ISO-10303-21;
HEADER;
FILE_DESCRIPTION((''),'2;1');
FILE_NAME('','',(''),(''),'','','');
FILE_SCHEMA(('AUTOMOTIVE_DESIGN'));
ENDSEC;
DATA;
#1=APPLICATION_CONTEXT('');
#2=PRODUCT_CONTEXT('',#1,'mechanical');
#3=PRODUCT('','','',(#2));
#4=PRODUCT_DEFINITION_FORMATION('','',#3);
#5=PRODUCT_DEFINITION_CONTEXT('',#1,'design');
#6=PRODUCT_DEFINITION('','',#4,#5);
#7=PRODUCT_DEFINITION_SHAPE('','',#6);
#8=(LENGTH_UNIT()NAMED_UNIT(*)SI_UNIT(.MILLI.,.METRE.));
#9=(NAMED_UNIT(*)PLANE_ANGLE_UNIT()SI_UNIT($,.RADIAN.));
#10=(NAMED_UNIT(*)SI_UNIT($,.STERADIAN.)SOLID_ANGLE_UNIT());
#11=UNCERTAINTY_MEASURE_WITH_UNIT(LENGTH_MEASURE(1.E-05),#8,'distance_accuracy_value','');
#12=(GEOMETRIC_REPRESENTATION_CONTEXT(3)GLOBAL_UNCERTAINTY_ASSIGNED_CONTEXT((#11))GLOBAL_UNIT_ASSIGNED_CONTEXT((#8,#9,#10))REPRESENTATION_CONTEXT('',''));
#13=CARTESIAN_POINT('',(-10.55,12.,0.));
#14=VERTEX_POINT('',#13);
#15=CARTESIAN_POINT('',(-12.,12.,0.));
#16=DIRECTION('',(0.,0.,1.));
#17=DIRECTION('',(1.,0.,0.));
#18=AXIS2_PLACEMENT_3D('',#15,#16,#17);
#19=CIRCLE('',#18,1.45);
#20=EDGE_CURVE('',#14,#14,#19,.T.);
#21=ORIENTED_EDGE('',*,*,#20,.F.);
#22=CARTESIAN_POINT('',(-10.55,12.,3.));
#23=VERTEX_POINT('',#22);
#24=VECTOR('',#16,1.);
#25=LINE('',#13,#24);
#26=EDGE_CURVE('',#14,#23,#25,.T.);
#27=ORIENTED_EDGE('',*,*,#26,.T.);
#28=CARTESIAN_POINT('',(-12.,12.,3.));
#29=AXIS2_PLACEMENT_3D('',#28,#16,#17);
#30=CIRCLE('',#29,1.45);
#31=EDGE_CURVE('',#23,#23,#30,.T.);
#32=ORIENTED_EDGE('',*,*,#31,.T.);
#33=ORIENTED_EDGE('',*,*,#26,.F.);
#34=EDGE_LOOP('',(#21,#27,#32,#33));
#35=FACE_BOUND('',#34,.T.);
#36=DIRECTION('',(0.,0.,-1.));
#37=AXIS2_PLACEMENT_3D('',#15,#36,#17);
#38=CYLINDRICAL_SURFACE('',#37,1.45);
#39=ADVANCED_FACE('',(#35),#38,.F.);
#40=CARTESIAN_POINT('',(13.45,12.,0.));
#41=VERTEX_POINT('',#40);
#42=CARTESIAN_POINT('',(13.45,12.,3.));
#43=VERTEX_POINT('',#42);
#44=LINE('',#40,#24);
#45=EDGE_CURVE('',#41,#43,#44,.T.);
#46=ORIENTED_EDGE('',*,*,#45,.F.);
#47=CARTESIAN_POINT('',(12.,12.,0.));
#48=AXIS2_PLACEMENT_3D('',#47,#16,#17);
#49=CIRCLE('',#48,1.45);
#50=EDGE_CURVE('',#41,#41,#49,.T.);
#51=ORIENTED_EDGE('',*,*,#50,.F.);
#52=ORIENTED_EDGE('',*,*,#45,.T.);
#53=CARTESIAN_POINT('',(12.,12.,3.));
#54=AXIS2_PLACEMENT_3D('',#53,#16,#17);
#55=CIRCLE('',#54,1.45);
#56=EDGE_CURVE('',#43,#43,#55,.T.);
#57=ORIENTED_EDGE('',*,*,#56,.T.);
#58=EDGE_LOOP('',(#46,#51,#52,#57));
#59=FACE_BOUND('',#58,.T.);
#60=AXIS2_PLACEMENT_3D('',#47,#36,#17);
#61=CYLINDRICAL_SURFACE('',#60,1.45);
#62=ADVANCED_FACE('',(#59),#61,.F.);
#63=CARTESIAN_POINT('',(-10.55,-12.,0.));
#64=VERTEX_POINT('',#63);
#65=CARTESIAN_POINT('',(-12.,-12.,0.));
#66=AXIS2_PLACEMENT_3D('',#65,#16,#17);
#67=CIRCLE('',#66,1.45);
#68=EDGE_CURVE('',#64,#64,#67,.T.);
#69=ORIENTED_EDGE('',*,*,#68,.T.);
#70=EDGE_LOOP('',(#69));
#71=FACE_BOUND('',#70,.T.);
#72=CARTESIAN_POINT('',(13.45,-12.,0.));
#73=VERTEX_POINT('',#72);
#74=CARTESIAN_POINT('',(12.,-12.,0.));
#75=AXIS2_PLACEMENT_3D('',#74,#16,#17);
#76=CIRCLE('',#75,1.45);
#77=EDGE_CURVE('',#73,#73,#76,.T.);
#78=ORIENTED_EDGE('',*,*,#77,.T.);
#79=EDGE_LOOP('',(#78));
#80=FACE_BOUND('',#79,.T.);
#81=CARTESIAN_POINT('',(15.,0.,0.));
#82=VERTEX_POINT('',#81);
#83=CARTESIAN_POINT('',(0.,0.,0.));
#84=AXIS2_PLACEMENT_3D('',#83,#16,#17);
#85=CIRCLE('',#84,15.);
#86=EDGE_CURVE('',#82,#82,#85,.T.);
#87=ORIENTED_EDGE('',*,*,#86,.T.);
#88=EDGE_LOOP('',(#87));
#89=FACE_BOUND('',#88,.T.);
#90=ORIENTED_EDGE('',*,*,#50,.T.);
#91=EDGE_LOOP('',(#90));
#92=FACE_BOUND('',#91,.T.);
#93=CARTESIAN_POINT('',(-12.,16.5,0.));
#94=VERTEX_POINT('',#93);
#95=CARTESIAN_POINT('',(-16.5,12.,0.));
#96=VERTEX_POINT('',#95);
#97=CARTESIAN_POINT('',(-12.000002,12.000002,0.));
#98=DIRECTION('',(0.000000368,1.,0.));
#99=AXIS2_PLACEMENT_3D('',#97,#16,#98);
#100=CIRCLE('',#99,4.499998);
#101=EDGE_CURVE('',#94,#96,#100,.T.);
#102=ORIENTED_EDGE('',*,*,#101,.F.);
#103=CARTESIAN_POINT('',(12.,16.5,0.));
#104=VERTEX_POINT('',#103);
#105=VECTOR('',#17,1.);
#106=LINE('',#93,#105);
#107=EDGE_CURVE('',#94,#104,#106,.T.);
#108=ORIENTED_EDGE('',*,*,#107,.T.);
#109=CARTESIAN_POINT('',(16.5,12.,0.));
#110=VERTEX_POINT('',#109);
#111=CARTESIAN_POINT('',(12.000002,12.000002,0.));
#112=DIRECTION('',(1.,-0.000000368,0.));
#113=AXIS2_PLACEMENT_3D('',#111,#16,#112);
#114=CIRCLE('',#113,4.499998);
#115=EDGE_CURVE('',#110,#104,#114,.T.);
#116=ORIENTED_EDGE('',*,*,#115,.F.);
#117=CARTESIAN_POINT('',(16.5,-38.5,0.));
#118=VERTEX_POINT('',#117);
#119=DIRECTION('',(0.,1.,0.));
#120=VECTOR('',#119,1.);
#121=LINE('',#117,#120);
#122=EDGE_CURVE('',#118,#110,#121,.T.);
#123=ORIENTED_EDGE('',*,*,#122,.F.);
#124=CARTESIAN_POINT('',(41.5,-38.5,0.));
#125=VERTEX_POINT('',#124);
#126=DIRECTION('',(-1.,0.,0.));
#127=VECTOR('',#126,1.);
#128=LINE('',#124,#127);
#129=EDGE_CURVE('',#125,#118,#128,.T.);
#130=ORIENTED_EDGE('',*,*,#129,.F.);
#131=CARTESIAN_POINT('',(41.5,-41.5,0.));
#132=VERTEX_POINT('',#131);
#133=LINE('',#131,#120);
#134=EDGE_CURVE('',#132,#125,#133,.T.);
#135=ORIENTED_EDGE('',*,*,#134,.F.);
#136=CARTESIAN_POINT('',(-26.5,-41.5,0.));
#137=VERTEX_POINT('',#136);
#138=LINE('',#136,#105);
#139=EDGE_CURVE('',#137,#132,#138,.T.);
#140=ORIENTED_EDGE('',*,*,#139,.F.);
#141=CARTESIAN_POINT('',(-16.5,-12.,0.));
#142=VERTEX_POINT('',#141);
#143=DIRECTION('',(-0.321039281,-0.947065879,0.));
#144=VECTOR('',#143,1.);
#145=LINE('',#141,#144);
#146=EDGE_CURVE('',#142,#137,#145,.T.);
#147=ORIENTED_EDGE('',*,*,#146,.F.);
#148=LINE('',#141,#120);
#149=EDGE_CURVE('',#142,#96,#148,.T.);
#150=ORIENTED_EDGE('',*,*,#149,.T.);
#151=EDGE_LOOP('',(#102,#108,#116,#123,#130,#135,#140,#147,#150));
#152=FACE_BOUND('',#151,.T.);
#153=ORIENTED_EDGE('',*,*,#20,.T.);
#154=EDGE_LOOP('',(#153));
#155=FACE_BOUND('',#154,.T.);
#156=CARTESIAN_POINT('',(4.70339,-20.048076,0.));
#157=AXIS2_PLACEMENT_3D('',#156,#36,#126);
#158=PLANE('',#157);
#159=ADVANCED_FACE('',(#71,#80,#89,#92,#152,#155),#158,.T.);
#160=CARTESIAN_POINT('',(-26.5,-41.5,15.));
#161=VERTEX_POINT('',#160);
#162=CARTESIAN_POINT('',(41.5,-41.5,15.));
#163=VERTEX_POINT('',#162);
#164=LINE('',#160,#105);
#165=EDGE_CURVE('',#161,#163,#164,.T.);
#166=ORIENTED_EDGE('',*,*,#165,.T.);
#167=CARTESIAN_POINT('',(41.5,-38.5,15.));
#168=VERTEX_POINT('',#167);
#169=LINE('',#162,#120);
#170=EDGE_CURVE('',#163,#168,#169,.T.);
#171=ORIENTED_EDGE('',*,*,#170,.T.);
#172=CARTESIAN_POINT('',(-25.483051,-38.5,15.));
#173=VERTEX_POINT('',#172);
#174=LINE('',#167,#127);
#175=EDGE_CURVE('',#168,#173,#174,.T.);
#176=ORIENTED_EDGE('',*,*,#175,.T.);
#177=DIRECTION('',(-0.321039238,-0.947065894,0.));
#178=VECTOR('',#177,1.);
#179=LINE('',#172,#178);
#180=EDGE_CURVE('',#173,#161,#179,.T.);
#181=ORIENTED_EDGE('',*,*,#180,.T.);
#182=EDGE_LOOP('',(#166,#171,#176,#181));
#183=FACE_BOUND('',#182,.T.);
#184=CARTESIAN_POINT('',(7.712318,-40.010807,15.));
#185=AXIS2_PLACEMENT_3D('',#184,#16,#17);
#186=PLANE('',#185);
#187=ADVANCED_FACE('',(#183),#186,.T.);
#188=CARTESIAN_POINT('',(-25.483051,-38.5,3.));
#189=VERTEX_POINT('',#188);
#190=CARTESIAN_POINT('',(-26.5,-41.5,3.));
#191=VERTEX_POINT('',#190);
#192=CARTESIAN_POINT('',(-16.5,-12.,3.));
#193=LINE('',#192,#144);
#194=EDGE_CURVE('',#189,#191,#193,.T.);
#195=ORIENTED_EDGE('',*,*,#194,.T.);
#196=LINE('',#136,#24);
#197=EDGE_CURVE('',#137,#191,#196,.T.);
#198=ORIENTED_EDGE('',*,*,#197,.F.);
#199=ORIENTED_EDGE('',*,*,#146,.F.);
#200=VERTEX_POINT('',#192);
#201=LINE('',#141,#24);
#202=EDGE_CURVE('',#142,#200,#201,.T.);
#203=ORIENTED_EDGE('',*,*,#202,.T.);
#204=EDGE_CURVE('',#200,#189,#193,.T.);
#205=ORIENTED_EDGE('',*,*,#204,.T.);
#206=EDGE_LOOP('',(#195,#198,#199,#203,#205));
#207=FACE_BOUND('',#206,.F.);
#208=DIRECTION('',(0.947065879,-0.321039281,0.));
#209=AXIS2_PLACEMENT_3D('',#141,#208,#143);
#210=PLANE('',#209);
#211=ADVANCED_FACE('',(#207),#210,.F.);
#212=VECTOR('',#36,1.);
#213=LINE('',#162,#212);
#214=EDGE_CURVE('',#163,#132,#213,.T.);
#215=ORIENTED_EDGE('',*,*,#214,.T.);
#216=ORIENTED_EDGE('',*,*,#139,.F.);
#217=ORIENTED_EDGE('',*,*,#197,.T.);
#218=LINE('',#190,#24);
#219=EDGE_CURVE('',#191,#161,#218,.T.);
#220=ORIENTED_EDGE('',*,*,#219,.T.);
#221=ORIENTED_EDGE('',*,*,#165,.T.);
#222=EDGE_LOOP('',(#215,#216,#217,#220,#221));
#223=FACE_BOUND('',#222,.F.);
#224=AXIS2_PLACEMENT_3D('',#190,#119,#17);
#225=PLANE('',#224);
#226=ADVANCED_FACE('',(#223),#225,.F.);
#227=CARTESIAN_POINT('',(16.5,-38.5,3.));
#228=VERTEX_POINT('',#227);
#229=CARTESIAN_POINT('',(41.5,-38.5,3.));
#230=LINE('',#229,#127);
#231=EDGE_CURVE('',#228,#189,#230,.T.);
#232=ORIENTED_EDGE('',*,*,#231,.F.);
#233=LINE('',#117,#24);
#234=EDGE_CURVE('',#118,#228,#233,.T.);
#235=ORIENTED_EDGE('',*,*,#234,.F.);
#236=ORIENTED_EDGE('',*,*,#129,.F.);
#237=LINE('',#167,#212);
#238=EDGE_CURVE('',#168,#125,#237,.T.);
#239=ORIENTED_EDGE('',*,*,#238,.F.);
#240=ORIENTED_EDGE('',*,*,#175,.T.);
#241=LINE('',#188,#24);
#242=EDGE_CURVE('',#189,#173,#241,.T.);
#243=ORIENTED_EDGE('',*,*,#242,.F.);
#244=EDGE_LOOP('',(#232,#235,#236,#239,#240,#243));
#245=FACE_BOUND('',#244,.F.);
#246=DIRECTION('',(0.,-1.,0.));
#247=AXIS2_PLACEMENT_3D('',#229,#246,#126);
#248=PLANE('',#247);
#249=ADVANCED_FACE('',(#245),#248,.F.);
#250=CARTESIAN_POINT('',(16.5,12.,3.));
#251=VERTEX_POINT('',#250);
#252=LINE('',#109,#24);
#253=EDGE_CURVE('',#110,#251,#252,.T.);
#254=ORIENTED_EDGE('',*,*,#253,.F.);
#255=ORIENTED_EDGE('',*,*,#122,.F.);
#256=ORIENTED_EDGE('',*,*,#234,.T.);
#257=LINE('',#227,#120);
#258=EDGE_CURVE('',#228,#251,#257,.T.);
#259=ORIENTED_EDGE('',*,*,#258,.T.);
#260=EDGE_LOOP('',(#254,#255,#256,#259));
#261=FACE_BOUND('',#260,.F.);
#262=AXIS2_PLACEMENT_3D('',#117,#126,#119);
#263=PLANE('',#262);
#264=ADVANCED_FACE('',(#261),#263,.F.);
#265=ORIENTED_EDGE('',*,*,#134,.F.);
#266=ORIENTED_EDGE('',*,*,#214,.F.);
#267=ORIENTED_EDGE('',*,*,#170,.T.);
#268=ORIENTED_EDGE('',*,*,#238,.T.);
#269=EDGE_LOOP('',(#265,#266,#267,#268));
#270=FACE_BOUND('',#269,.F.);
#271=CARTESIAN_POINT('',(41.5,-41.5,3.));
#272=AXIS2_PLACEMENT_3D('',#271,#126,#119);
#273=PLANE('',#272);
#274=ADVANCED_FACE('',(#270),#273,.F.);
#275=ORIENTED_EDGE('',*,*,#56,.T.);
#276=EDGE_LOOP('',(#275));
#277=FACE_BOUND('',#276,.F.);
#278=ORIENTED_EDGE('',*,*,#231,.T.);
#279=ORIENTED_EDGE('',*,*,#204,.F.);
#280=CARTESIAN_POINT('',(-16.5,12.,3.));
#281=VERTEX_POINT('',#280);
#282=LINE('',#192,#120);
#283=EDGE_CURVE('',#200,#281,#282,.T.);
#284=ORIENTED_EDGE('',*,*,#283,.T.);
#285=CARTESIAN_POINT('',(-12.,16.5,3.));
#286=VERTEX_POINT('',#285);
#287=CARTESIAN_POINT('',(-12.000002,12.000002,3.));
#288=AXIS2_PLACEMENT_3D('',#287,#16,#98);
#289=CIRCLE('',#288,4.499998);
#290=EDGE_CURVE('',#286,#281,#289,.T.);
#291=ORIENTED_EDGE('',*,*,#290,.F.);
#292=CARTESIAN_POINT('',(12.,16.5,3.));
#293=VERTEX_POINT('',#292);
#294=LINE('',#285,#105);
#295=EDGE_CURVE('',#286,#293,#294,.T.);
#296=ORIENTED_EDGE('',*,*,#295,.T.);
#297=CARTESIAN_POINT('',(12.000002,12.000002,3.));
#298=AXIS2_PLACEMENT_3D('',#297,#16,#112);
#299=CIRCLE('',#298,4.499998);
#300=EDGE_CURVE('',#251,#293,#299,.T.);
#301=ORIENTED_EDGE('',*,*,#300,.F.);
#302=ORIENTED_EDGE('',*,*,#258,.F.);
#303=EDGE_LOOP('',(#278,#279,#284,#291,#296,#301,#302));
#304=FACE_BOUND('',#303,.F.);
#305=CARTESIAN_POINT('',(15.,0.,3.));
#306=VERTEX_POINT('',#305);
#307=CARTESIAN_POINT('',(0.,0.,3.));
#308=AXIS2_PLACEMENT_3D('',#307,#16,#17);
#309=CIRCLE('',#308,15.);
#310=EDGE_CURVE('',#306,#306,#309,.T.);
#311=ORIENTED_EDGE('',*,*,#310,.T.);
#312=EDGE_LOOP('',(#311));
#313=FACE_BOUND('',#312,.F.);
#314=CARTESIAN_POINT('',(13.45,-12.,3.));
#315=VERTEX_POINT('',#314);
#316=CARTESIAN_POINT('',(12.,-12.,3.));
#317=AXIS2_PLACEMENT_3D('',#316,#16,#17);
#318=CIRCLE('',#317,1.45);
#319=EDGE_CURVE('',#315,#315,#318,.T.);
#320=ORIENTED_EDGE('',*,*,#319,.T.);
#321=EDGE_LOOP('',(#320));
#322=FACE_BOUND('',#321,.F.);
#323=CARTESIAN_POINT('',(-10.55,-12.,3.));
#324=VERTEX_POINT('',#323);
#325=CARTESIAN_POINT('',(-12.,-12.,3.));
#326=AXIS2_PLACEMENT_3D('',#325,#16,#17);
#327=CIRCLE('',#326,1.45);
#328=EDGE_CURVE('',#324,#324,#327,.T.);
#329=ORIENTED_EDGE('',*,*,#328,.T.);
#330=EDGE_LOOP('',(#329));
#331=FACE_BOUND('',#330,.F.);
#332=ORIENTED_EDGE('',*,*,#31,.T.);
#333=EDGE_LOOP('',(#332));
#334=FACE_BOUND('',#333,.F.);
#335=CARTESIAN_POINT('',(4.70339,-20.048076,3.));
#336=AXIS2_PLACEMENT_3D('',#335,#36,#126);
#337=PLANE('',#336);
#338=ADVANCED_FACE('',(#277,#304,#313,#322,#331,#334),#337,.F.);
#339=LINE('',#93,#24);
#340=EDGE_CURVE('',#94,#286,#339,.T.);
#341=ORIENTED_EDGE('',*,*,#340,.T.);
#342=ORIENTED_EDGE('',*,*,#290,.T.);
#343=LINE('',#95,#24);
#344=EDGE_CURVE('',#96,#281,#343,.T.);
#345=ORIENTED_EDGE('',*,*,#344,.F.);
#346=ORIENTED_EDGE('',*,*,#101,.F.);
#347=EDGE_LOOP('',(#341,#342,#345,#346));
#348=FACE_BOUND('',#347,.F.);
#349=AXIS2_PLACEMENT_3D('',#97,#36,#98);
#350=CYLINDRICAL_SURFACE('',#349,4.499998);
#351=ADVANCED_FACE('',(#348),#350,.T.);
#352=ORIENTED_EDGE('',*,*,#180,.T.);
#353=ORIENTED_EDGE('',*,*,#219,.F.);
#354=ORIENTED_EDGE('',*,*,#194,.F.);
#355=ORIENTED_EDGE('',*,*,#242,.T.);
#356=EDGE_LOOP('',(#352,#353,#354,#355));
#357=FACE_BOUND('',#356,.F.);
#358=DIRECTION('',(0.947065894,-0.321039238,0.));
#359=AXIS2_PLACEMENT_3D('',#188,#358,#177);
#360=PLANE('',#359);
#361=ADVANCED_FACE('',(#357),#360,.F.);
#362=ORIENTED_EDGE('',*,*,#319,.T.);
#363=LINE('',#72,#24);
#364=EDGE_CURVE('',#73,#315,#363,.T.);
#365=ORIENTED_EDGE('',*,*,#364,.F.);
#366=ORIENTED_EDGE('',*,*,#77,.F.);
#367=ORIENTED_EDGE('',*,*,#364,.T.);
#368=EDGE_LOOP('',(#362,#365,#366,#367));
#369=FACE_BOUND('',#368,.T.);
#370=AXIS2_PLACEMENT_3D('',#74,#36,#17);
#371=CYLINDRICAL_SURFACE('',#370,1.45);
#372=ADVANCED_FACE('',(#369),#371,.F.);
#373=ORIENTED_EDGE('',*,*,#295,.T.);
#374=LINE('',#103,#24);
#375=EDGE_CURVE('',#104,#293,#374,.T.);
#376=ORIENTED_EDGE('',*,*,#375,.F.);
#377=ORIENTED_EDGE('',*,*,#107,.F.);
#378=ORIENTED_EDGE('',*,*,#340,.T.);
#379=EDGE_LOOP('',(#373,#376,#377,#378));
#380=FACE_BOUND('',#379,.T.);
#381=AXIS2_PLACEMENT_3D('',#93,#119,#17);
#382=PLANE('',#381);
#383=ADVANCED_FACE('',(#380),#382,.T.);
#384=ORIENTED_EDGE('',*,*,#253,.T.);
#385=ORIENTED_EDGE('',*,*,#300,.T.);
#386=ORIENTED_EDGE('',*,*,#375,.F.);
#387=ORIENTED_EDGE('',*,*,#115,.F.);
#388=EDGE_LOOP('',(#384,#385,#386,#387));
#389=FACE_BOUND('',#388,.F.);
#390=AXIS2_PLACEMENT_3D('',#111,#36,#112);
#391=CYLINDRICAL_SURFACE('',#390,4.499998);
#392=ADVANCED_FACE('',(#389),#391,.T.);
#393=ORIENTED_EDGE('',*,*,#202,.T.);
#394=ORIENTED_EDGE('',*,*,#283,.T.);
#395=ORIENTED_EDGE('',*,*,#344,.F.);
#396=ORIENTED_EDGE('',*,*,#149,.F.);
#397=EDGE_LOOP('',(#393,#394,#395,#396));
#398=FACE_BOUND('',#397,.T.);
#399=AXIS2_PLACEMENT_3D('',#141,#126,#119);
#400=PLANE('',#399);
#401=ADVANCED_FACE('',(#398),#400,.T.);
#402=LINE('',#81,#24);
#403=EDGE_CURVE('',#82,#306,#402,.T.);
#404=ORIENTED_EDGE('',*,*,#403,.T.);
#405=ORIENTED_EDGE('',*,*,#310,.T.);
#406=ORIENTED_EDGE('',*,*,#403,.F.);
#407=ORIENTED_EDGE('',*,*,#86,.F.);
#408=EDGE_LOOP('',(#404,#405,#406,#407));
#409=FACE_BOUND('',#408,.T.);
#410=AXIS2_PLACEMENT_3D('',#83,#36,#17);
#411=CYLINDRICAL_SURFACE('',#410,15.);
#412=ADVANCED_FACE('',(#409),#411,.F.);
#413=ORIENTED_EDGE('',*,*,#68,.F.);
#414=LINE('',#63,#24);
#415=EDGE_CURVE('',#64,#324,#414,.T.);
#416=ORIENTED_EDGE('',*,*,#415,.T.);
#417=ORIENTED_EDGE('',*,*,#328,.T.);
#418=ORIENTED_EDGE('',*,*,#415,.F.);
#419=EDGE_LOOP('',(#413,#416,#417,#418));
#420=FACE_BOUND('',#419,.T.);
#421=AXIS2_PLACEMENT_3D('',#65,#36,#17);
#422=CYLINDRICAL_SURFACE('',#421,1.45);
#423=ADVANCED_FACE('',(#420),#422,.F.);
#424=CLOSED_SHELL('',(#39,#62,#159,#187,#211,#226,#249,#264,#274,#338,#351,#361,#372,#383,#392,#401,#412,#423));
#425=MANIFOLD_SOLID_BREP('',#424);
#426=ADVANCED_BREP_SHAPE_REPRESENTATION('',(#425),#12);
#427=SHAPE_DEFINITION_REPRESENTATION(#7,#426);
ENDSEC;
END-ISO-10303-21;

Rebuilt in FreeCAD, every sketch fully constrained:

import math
import FreeCAD as App
import Part
import Sketcher
from FreeCAD import Vector
Q = App.Units.Quantity

doc = App.newDocument("Part")
body = doc.addObject("PartDesign::Body", "Body")

sketch1 = doc.addObject("Sketcher::SketchObject", "Sketch")
body.addObject(sketch1)
sketch1.AttachmentSupport = (doc.XY_Plane, [""])
sketch1.MapMode = "FlatFace"
sketch1.addGeometry([
    Part.LineSegment(Vector(12, 16.5, 0), Vector(-12, 16.5, 0)),
    Part.ArcOfCircle(Part.Circle(Vector(-12.000002, 12.000002, 0), Vector(0, 0, 1), 4.499998), math.radians(89.999979), math.radians(180.000021)),
    Part.LineSegment(Vector(-16.5, 12, 0), Vector(-16.5, -12, 0)),
    Part.LineSegment(Vector(-16.5, -12, 0), Vector(-26.5, -41.5, 0)),
    Part.LineSegment(Vector(-26.5, -41.5, 0), Vector(41.5, -41.5, 0)),
    Part.LineSegment(Vector(41.5, -41.5, 0), Vector(41.5, -38.5, 0)),
    Part.LineSegment(Vector(41.5, -38.5, 0), Vector(16.5, -38.5, 0)),
    Part.LineSegment(Vector(16.5, -38.5, 0), Vector(16.5, 12, 0)),
    Part.ArcOfCircle(Part.Circle(Vector(12.000002, 12.000002, 0), Vector(0, 0, 1), 4.499998), math.radians(-0.000021), math.radians(90.000021)),
    Part.Circle(Vector(12, -12, 0), Vector(0, 0, 1), 1.45),
    Part.Circle(Vector(-12, -12, 0), Vector(0, 0, 1), 1.45),
    Part.Circle(Vector(12, 12, 0), Vector(0, 0, 1), 1.45),
    Part.Circle(Vector(0, 0, 0), Vector(0, 0, 1), 15),
    Part.Circle(Vector(-12, 12, 0), Vector(0, 0, 1), 1.45),
], False)
sketch1.addConstraint([
    Sketcher.Constraint("Tangent", 0, 2, 1, 1),
    Sketcher.Constraint("Tangent", 1, 2, 2, 1),
    Sketcher.Constraint("Coincident", 2, 2, 3, 1),
    Sketcher.Constraint("Coincident", 3, 2, 4, 1),
    Sketcher.Constraint("Coincident", 4, 2, 5, 1),
    Sketcher.Constraint("Coincident", 5, 2, 6, 1),
    Sketcher.Constraint("Coincident", 6, 2, 7, 1),
    Sketcher.Constraint("Tangent", 7, 2, 8, 1),
    Sketcher.Constraint("Tangent", 8, 2, 0, 1),
    Sketcher.Constraint("Horizontal", 0),
    Sketcher.Constraint("Vertical", 2),
    Sketcher.Constraint("Horizontal", 4),
    Sketcher.Constraint("Vertical", 5),
    Sketcher.Constraint("Horizontal", 6),
    Sketcher.Constraint("Vertical", 7),
    Sketcher.Constraint("Coincident", 12, 3, -1, 1),
    Sketcher.Constraint("Coincident", 11, 3, 8, 3),
    Sketcher.Constraint("Coincident", 13, 3, 1, 3),
    Sketcher.Constraint("Equal", 1, 8),
    Sketcher.Constraint("Equal", 9, 10),
    Sketcher.Constraint("Equal", 10, 11),
    Sketcher.Constraint("Equal", 11, 13),
    Sketcher.Constraint("Symmetric", 1, 3, 9, 3, -1, 1),
    Sketcher.Constraint("Symmetric", 8, 3, 10, 3, -1, 1),
    Sketcher.Constraint("Symmetric", 2, 2, 7, 2, -1, 1),
    Sketcher.Constraint("Equal", 0, 2),
    Sketcher.Constraint("Diameter", 12, Q("30 mm")),
    Sketcher.Constraint("Diameter", 9, Q("2.9 mm")),
    Sketcher.Constraint("Radius", 1, Q("4.499998 mm")),
    Sketcher.Constraint("DistanceX", 0, 2, 0, 1, Q("24 mm")),
    Sketcher.Constraint("DistanceX", 4, 1, 4, 2, Q("68 mm")),
    Sketcher.Constraint("DistanceX", 6, 2, 6, 1, Q("25 mm")),
    Sketcher.Constraint("DistanceY", 5, 1, 5, 2, Q("3 mm")),
    Sketcher.Constraint("DistanceY", 7, 1, 7, 2, Q("50.5 mm")),
])
pad1 = doc.addObject("PartDesign::Pad", "Pad")
body.addObject(pad1)
pad1.Profile = sketch1
pad1.Length = 3

sketch2 = doc.addObject("Sketcher::SketchObject", "Sketch001")
body.addObject(sketch2)
sketch2.AttachmentSupport = (doc.XY_Plane, [""])
sketch2.MapMode = "FlatFace"
sketch2.AttachmentOffset = App.Placement(Vector(0, 0, 3), App.Rotation())
sketch2.addGeometry([
    Part.LineSegment(Vector(41.5, -38.5, 0), Vector(-25.483051, -38.5, 0)),
    Part.LineSegment(Vector(-25.483051, -38.5, 0), Vector(-26.5, -41.5, 0)),
    Part.LineSegment(Vector(-26.5, -41.5, 0), Vector(41.5, -41.5, 0)),
    Part.LineSegment(Vector(41.5, -41.5, 0), Vector(41.5, -38.5, 0)),
], False)
sketch2.addConstraint([
    Sketcher.Constraint("Coincident", 0, 2, 1, 1),
    Sketcher.Constraint("Coincident", 1, 2, 2, 1),
    Sketcher.Constraint("Coincident", 2, 2, 3, 1),
    Sketcher.Constraint("Coincident", 3, 2, 0, 1),
    Sketcher.Constraint("Horizontal", 0),
    Sketcher.Constraint("Horizontal", 2),
    Sketcher.Constraint("Vertical", 3),
    Sketcher.Constraint("DistanceX", 2, 1, 2, 2, Q("68 mm")),
    Sketcher.Constraint("DistanceY", 3, 1, 3, 2, Q("3 mm")),
    Sketcher.Constraint("DistanceY", 0, 2, -1, 1, Q("38.5 mm")),
    Sketcher.Constraint("DistanceX", 1, 2, -1, 1, Q("26.5 mm")),
    Sketcher.Constraint("DistanceX", 0, 2, 0, 1, Q("66.983051 mm")),
])
pad2 = doc.addObject("PartDesign::Pad", "Pad001")
body.addObject(pad2)
pad2.Profile = sketch2
pad2.Length = 12

doc.recompute()
